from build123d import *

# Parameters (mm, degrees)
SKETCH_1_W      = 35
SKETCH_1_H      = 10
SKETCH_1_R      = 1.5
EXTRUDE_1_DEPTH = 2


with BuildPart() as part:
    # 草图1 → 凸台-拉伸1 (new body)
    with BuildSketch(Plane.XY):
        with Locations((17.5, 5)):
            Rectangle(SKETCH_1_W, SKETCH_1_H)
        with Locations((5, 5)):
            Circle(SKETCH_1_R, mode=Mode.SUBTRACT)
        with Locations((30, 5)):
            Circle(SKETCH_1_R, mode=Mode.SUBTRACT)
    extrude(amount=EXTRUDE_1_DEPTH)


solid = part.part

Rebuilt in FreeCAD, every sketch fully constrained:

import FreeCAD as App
import Part
import Sketcher

V = App.Vector
Q = App.Units.Quantity

doc = App.newDocument("Part")
body = doc.addObject("PartDesign::Body", "Body")

sketch1 = doc.addObject("Sketcher::SketchObject", "Sketch")
body.addObject(sketch1)
sketch1.AttachmentSupport = (doc.XY_Plane, [""])
sketch1.MapMode = "FlatFace"
sketch1.addGeometry([
    Part.LineSegment(V(0, 10, 0), V(0, 0, 0)),
    Part.LineSegment(V(0, 0, 0), V(35, 0, 0)),
    Part.LineSegment(V(35, 0, 0), V(35, 10, 0)),
    Part.LineSegment(V(35, 10, 0), V(0, 10, 0)),
    Part.Circle(V(5, 5, 0), V(0, 0, 1), 1.5),
    Part.Circle(V(30, 5, 0), V(0, 0, 1), 1.5),
], False)
sketch1.addConstraint([
    Sketcher.Constraint("Coincident", 0, 2, 1, 1),
    Sketcher.Constraint("Coincident", 1, 2, 2, 1),
    Sketcher.Constraint("Coincident", 2, 2, 3, 1),
    Sketcher.Constraint("Coincident", 3, 2, 0, 1),
    Sketcher.Constraint("Vertical", 0),
    Sketcher.Constraint("Horizontal", 1),
    Sketcher.Constraint("Vertical", 2),
    Sketcher.Constraint("Horizontal", 3),
    Sketcher.Constraint("Coincident", 0, 2, -1, 1),
    Sketcher.Constraint("Equal", 4, 5),
    Sketcher.Constraint("Horizontal", 4, 3, 5, 3),
    Sketcher.Constraint("Diameter", 4, Q("3 mm")),
    Sketcher.Constraint("DistanceX", 1, 1, 1, 2, Q("35 mm")),
    Sketcher.Constraint("DistanceY", 0, 2, 0, 1, Q("10 mm")),
    Sketcher.Constraint("DistanceX", -1, 1, 4, 3, Q("5 mm")),
    Sketcher.Constraint("DistanceY", -1, 1, 4, 3, Q("5 mm")),
    Sketcher.Constraint("DistanceX", -1, 1, 5, 3, Q("30 mm")),
])
pad1 = doc.addObject("PartDesign::Pad", "Pad")
body.addObject(pad1)
pad1.Profile = sketch1
pad1.Length = 2

doc.recompute()
